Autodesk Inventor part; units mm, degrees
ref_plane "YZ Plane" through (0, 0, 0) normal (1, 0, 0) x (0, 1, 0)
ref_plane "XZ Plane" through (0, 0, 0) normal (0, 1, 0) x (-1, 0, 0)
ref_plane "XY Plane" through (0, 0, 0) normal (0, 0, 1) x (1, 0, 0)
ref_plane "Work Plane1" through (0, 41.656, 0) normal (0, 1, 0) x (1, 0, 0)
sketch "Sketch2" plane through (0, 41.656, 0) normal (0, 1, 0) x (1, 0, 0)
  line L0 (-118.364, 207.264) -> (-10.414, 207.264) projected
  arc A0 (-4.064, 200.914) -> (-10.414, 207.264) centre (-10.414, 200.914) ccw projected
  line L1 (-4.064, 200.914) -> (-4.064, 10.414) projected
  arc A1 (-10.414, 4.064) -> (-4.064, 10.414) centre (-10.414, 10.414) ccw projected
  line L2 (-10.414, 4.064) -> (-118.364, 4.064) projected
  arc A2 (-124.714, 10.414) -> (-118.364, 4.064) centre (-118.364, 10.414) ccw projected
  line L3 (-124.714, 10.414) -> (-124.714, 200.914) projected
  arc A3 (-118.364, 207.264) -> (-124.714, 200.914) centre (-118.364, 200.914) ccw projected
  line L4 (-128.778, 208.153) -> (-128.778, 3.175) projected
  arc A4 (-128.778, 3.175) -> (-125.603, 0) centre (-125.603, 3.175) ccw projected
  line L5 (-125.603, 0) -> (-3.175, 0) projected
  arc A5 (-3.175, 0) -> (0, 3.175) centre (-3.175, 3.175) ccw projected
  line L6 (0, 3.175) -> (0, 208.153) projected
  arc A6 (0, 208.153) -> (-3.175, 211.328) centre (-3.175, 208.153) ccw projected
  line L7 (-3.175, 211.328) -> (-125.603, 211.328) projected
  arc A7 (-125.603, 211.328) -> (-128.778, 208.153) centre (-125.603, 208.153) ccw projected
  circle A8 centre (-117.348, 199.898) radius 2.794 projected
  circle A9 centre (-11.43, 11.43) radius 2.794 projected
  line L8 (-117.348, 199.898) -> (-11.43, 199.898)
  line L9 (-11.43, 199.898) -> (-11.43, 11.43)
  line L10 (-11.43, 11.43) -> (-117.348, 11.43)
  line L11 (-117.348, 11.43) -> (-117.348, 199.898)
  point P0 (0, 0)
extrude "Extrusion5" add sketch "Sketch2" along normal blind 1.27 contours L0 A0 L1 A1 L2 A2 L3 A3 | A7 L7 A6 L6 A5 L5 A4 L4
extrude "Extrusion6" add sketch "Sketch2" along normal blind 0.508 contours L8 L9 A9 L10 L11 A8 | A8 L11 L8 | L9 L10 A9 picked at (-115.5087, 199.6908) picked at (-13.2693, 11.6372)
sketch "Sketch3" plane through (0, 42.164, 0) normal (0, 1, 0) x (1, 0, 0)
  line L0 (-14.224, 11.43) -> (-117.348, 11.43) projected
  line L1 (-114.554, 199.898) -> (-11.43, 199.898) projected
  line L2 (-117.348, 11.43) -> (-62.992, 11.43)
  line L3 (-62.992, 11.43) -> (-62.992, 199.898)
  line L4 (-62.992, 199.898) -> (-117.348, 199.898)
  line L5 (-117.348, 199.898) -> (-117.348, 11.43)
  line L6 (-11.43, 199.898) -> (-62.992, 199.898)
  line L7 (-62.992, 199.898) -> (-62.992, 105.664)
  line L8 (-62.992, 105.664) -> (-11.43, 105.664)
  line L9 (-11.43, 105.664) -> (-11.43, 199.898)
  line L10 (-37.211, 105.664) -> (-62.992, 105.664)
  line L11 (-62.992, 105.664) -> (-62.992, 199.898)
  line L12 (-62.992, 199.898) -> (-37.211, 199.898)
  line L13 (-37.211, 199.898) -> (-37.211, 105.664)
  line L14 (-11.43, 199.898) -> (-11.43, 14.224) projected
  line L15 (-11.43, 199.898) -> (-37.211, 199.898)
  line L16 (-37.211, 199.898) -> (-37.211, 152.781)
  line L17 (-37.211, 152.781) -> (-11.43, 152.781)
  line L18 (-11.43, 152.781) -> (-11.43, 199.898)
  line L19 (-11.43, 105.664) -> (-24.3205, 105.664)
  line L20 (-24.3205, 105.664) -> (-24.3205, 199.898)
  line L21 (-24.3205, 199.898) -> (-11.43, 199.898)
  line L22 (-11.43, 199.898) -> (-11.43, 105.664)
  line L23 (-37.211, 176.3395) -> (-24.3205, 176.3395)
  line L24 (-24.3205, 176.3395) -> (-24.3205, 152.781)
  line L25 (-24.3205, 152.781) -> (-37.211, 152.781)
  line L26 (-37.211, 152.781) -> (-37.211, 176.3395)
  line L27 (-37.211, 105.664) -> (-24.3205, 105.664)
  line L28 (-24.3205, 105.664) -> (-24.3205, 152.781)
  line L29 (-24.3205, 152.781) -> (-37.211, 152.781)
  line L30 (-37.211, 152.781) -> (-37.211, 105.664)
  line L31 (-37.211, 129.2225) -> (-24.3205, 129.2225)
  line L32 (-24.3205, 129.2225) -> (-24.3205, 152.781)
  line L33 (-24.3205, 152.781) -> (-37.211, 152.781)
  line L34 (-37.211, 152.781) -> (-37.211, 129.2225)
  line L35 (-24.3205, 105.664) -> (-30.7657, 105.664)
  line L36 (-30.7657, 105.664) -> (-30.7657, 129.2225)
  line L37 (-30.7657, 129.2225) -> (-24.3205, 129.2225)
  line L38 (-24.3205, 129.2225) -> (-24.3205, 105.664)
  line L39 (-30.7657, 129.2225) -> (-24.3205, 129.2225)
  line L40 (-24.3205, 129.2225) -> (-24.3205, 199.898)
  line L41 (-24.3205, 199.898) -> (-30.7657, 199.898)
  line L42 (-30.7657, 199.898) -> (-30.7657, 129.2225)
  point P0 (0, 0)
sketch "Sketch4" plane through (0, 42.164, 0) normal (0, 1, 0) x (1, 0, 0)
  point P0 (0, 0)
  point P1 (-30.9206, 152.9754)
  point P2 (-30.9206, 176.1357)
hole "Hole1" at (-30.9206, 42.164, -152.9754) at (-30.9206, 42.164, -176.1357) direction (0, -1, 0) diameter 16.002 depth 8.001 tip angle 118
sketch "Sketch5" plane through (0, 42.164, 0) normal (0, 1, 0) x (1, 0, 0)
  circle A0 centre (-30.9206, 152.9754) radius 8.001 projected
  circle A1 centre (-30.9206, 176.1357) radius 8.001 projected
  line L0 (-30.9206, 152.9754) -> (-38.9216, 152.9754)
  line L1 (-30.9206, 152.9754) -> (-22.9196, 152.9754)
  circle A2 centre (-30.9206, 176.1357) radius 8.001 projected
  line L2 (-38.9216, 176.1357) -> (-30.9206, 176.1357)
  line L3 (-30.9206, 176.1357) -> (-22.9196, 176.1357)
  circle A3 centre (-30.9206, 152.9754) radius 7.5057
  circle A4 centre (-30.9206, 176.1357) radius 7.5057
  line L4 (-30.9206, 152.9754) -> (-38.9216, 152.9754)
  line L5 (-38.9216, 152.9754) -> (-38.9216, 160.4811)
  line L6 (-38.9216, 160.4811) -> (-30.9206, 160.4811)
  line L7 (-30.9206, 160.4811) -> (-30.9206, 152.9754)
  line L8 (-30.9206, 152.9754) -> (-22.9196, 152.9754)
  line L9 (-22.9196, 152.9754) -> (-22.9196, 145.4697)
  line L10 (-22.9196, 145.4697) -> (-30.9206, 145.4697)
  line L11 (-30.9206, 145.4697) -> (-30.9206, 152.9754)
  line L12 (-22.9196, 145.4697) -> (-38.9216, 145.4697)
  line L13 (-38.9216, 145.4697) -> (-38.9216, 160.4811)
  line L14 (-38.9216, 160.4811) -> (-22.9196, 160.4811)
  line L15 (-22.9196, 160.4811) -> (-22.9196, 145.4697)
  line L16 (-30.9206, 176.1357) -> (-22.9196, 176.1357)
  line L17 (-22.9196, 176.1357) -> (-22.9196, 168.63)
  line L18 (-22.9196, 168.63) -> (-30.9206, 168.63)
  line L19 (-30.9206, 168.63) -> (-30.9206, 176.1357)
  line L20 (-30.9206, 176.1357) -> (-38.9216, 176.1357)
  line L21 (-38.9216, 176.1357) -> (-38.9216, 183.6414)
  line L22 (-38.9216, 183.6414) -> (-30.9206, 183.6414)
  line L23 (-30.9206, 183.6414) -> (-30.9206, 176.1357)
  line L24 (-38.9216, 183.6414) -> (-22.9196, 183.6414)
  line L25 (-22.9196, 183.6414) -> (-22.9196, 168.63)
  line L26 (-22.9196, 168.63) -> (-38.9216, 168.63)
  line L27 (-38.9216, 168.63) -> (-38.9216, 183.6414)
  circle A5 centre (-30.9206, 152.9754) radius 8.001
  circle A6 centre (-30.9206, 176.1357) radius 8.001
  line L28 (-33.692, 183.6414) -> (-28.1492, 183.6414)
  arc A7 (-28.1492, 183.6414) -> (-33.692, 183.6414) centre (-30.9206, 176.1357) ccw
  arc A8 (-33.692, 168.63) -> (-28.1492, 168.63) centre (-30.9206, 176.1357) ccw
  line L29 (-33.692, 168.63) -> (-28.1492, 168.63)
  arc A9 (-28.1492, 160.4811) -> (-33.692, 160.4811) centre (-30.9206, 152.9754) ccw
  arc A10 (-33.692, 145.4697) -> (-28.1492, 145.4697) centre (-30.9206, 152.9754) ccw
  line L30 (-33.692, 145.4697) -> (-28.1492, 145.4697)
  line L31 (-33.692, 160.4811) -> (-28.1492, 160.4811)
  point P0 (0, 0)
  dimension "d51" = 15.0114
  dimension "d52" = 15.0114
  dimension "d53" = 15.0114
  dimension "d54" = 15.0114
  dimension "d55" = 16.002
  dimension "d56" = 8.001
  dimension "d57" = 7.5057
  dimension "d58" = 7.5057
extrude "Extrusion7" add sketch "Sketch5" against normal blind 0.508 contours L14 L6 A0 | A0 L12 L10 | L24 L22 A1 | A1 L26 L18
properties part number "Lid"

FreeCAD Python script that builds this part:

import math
import FreeCAD as App
import Part
import Sketcher
from FreeCAD import Vector
Q = App.Units.Quantity


def add_polygon(sketch, points):
    """Adds a closed chain of lines whose ends are joined by coincident constraints."""
    first, n = sketch.GeometryCount, len(points)
    for a, b in zip(points, points[1:] + points[:1]):
        sketch.addGeometry(Part.LineSegment(App.Vector(*a, 0), App.Vector(*b, 0)), False)
    for i in range(n):
        sketch.addConstraint(Sketcher.Constraint("Coincident", first + i, 2, first + (i + 1) % n, 1))

doc = App.newDocument("Part")
params = doc.addObject("Spreadsheet::Sheet", "Params")
for row, (alias, value) in enumerate([
    ("sketch1_radius", "0.11 in"),
    ("sketch1_radius2", "0.125 in"),
    ("sketch1_width", "4.82 in"),
    ("sketch1_width2", "4.06 in"),
    ("sketch1_height", "8.07 in"),
    ("pad1_length", "0.05 in"),
    ("sketch2_width", "4.17 in"),
    ("sketch2_height", "7.42 in"),
    ("pad2_length", "0.02 in"),
    ("sketch3_diameter", "0.63 in"),
    ("hole_diameter", "0.63 in"),
    ("hole_depth", "0.315 in"),
    ("sketch4_radius", "0.315 in"),
    ("pad3_length", "0.02 in"),
], start=1):
    params.set(f"A{row}", alias)
    params.set(f"B{row}", "=" + value)
    params.setAlias(f"B{row}", alias)

body = doc.addObject("PartDesign::Body", "Body")

sketch1 = body.newObject("Sketcher::SketchObject", "Sketch")
sketch1.AttachmentSupport = (doc.getObject("XZ_Plane"), [""])
sketch1.MapMode = "FlatFace"
sketch1.AttachmentOffset = App.Placement(Vector(0, 0, -1.64 * 25.4), App.Rotation())
sketch1.addGeometry(Part.ArcOfCircle(Part.Circle(Vector(-125.6, -208.2, 0), Vector(0, 0, 1), 3.2), math.radians(180), math.radians(270)), False)
sketch1.addGeometry(Part.LineSegment(Vector(-128.8, -208.2, 0), Vector(-128.8, -3.2, 0)), False)
sketch1.addGeometry(Part.ArcOfCircle(Part.Circle(Vector(-125.6, -3.2, 0), Vector(0, 0, 1), 3.2), math.radians(90), math.radians(180)), False)
sketch1.addGeometry(Part.LineSegment(Vector(-125.6, 0, 0), Vector(-3.2, 0, 0)), False)
sketch1.addGeometry(Part.ArcOfCircle(Part.Circle(Vector(-3.2, -3.2, 0), Vector(0, 0, 1), 3.2), math.radians(0), math.radians(90)), False)
sketch1.addGeometry(Part.LineSegment(Vector(0, -3.2, 0), Vector(0, -208.2, 0)), False)
sketch1.addGeometry(Part.ArcOfCircle(Part.Circle(Vector(-3.2, -208.2, 0), Vector(0, 0, 1), 3.2), math.radians(-90), math.radians(0)), False)
sketch1.addGeometry(Part.LineSegment(Vector(-3.2, -211.3, 0), Vector(-125.6, -211.3, 0)), False)
sketch1.addGeometry(Part.ArcOfCircle(Part.Circle(Vector(-117.3, -199.9, 0), Vector(0, 0, 1), 2.8), math.radians(90), math.radians(360)), False)
sketch1.addGeometry(Part.LineSegment(Vector(-114.6, -199.9, 0), Vector(-11.4, -199.9, 0)), False)
sketch1.addGeometry(Part.LineSegment(Vector(-11.4, -199.9, 0), Vector(-11.4, -14.2, 0)), False)
sketch1.addGeometry(Part.ArcOfCircle(Part.Circle(Vector(-11.4, -11.4, 0), Vector(0, 0, 1), 2.8), math.radians(-90), math.radians(180)), False)
sketch1.addGeometry(Part.LineSegment(Vector(-14.2, -11.4, 0), Vector(-117.3, -11.4, 0)), False)
sketch1.addGeometry(Part.LineSegment(Vector(-117.3, -11.4, 0), Vector(-117.3, -197.1, 0)), False)
sketch1.addConstraint(Sketcher.Constraint("Tangent", 0, 1, 1, 1))
sketch1.addConstraint(Sketcher.Constraint("Tangent", 1, 2, 2, 2))
sketch1.addConstraint(Sketcher.Constraint("Tangent", 2, 1, 3, 1))
sketch1.addConstraint(Sketcher.Constraint("Tangent", 3, 2, 4, 2))
sketch1.addConstraint(Sketcher.Constraint("Tangent", 4, 1, 5, 1))
sketch1.addConstraint(Sketcher.Constraint("Tangent", 5, 2, 6, 2))
sketch1.addConstraint(Sketcher.Constraint("Tangent", 6, 1, 7, 1))
sketch1.addConstraint(Sketcher.Constraint("Tangent", 7, 2, 0, 2))
sketch1.addConstraint(Sketcher.Constraint("Coincident", 8, 2, 9, 1))
sketch1.addConstraint(Sketcher.Constraint("Coincident", 9, 2, 10, 1))
sketch1.addConstraint(Sketcher.Constraint("Coincident", 10, 2, 11, 1))
sketch1.addConstraint(Sketcher.Constraint("Coincident", 11, 2, 12, 1))
sketch1.addConstraint(Sketcher.Constraint("Coincident", 12, 2, 13, 1))
sketch1.addConstraint(Sketcher.Constraint("Coincident", 13, 2, 8, 1))
sketch1.addConstraint(Sketcher.Constraint("Vertical", 1))
sketch1.addConstraint(Sketcher.Constraint("Horizontal", 3))
sketch1.addConstraint(Sketcher.Constraint("Vertical", 5))
sketch1.addConstraint(Sketcher.Constraint("Horizontal", 7))
sketch1.addConstraint(Sketcher.Constraint("Horizontal", 9))
sketch1.addConstraint(Sketcher.Constraint("Vertical", 10))
sketch1.addConstraint(Sketcher.Constraint("Horizontal", 12))
sketch1.addConstraint(Sketcher.Constraint("Vertical", 13))
sketch1.addConstraint(Sketcher.Constraint("Equal", 0, 2))
sketch1.addConstraint(Sketcher.Constraint("Equal", 2, 4))
sketch1.addConstraint(Sketcher.Constraint("Equal", 4, 6))
sketch1.addConstraint(Sketcher.Constraint("Equal", 8, 11))
sketch1.addConstraint(Sketcher.Constraint("PointOnObject", 2, 1, -1))
sketch1.addConstraint(Sketcher.Constraint("PointOnObject", 4, 1, -2))
sketch1.addConstraint(Sketcher.Constraint("Vertical", 11, 3, 9, 2))
sketch1.addConstraint(Sketcher.Constraint("Vertical", 8, 3, 12, 2))
sketch1.addConstraint(Sketcher.Constraint("Equal", 10, 13))
sketch1.addConstraint(Sketcher.Constraint("Radius", 8, Q("0.11 in")))
sketch1.addConstraint(Sketcher.Constraint("Radius", 0, Q("0.125 in")))
sketch1.addConstraint(Sketcher.Constraint("DistanceX", 3, 1, 3, 2, Q("4.82 in")))
sketch1.addConstraint(Sketcher.Constraint("DistanceX", 9, 1, 9, 2, Q("4.06 in")))
sketch1.addConstraint(Sketcher.Constraint("DistanceY", 1, 1, 1, 2, Q("8.07 in")))
sketch1.addConstraint(Sketcher.Constraint("DistanceY", 10, 1, 10, 2, Q("7.31 in")))
sketch1.addConstraint(Sketcher.Constraint("DistanceX", 8, 3, -1, 1, Q("4.62 in")))
sketch1.addConstraint(Sketcher.Constraint("DistanceY", 8, 3, -1, 1, Q("7.87 in")))
sketch1.addConstraint(Sketcher.Constraint("DistanceY", 11, 3, -1, 1, Q("0.45 in")))
sketch1.setExpression("Constraints[31]", "Params.sketch1_radius")
sketch1.setExpression("Constraints[32]", "Params.sketch1_radius2")
sketch1.setExpression("Constraints[33]", "Params.sketch1_width")
sketch1.setExpression("Constraints[34]", "Params.sketch1_width2")
sketch1.setExpression("Constraints[35]", "Params.sketch1_height")
pad1 = body.newObject("PartDesign::Pad", "Pad")
pad1.Profile = sketch1
pad1.setExpression("Length", "Params.pad1_length")
pad1.Reversed = True

sketch2 = body.newObject("Sketcher::SketchObject", "Sketch001")
sketch2.AttachmentSupport = (doc.getObject("XZ_Plane"), [""])
sketch2.MapMode = "FlatFace"
sketch2.AttachmentOffset = App.Placement(Vector(0, 0, -1.64 * 25.4), App.Rotation())
add_polygon(sketch2, [(-11, -200), (-117, -200), (-117, -11), (-11, -11)])
sketch2.addConstraint(Sketcher.Constraint("Horizontal", 0))
sketch2.addConstraint(Sketcher.Constraint("Vertical", 1))
sketch2.addConstraint(Sketcher.Constraint("Horizontal", 2))
sketch2.addConstraint(Sketcher.Constraint("Vertical", 3))
sketch2.addConstraint(Sketcher.Constraint("DistanceX", 0, 2, 0, 1, Q("4.17 in")))
sketch2.addConstraint(Sketcher.Constraint("DistanceY", 1, 1, 1, 2, Q("7.42 in")))
sketch2.addConstraint(Sketcher.Constraint("DistanceX", 0, 2, -1, 1, Q("4.62 in")))
sketch2.addConstraint(Sketcher.Constraint("DistanceY", 0, 2, -1, 1, Q("7.87 in")))
sketch2.setExpression("Constraints[8]", "Params.sketch2_width")
sketch2.setExpression("Constraints[9]", "Params.sketch2_height")
pad2 = body.newObject("PartDesign::Pad", "Pad001")
pad2.Profile = sketch2
pad2.setExpression("Length", "Params.pad2_length")
pad2.Reversed = True

sketch3 = body.newObject("Sketcher::SketchObject", "Sketch002")
sketch3.AttachmentSupport = (doc.getObject("XZ_Plane"), [""])
sketch3.MapMode = "FlatFace"
sketch3.AttachmentOffset = App.Placement(Vector(0, 0, -1.66 * 25.4), App.Rotation())
sketch3.addGeometry(Part.Circle(Vector(-31, -153, 0), Vector(0, 0, 1), 8), False)
sketch3.addGeometry(Part.Circle(Vector(-31, -176, 0), Vector(0, 0, 1), 8), False)
sketch3.addConstraint(Sketcher.Constraint("Equal", 0, 1))
sketch3.addConstraint(Sketcher.Constraint("Vertical", 0, 3, 1, 3))
sketch3.addConstraint(Sketcher.Constraint("Diameter", 0, Q("0.63 in")))
sketch3.addConstraint(Sketcher.Constraint("DistanceX", 0, 3, -1, 1, 30.9206))
sketch3.addConstraint(Sketcher.Constraint("DistanceY", 0, 3, -1, 1, 152.9754))
sketch3.addConstraint(Sketcher.Constraint("DistanceY", 1, 3, -1, 1, 176.1357))
sketch3.setExpression("Constraints[2]", "Params.sketch3_diameter")
doc.recompute()
hole = body.newObject("PartDesign::Hole", "Hole")
hole.Profile = sketch3
hole.ThreadType = "None"
hole.setExpression("Diameter", "Params.hole_diameter")
hole.DepthType = "Dimension"
hole.setExpression("Depth", "Params.hole_depth")
hole.DrillPoint = "Angled"
hole.DrillPointAngle = 118
hole.Reversed = True

sketch4 = body.newObject("Sketcher::SketchObject", "Sketch003")
sketch4.AttachmentSupport = (doc.getObject("XZ_Plane"), [""])
sketch4.MapMode = "FlatFace"
sketch4.AttachmentOffset = App.Placement(Vector(0, 0, -1.66 * 25.4), App.Rotation())
sketch4.addGeometry(Part.LineSegment(Vector(-34, -160, 0), Vector(-28, -160, 0)), False)
sketch4.addGeometry(Part.ArcOfCircle(Part.Circle(Vector(-31, -153, 0), Vector(0, 0, 1), 8), math.radians(-110), math.radians(-70)), False)
sketch4.addGeometry(Part.ArcOfCircle(Part.Circle(Vector(-31, -153, 0), Vector(0, 0, 1), 8), math.radians(70), math.radians(110)), False)
sketch4.addGeometry(Part.LineSegment(Vector(-34, -145, 0), Vector(-28, -145, 0)), False)
sketch4.addGeometry(Part.LineSegment(Vector(-34, -184, 0), Vector(-28, -184, 0)), False)
sketch4.addGeometry(Part.ArcOfCircle(Part.Circle(Vector(-31, -176, 0), Vector(0, 0, 1), 8), math.radians(-110), math.radians(-70)), False)
sketch4.addGeometry(Part.ArcOfCircle(Part.Circle(Vector(-31, -176, 0), Vector(0, 0, 1), 8), math.radians(70), math.radians(110)), False)
sketch4.addGeometry(Part.LineSegment(Vector(-34, -169, 0), Vector(-28, -169, 0)), False)
sketch4.addConstraint(Sketcher.Constraint("Coincident", 0, 1, 1, 1))
sketch4.addConstraint(Sketcher.Constraint("Coincident", 1, 2, 0, 2))
sketch4.addConstraint(Sketcher.Constraint("Coincident", 2, 1, 3, 2))
sketch4.addConstraint(Sketcher.Constraint("Coincident", 3, 1, 2, 2))
sketch4.addConstraint(Sketcher.Constraint("Coincident", 4, 1, 5, 1))
sketch4.addConstraint(Sketcher.Constraint("Coincident", 5, 2, 4, 2))
sketch4.addConstraint(Sketcher.Constraint("Coincident", 6, 1, 7, 2))
sketch4.addConstraint(Sketcher.Constraint("Coincident", 7, 1, 6, 2))
sketch4.addConstraint(Sketcher.Constraint("Horizontal", 0))
sketch4.addConstraint(Sketcher.Constraint("Horizontal", 3))
sketch4.addConstraint(Sketcher.Constraint("Horizontal", 4))
sketch4.addConstraint(Sketcher.Constraint("Horizontal", 7))
sketch4.addConstraint(Sketcher.Constraint("Coincident", 2, 3, 1, 3))
sketch4.addConstraint(Sketcher.Constraint("Coincident", 6, 3, 5, 3))
sketch4.addConstraint(Sketcher.Constraint("Equal", 1, 2))
sketch4.addConstraint(Sketcher.Constraint("Equal", 2, 5))
sketch4.addConstraint(Sketcher.Constraint("Equal", 5, 6))
sketch4.addConstraint(Sketcher.Constraint("Vertical", 2, 3, 5, 3))
sketch4.addConstraint(Sketcher.Constraint("Vertical", 1, 2, 2, 1))
sketch4.addConstraint(Sketcher.Constraint("Vertical", 3, 1, 4, 1))
sketch4.addConstraint(Sketcher.Constraint("Vertical", 5, 2, 6, 1))
sketch4.addConstraint(Sketcher.Constraint("Radius", 1, Q("0.315 in")))
sketch4.addConstraint(Sketcher.Constraint("DistanceY", 1, 2, 2, 1, Q("0.591 in")))
sketch4.addConstraint(Sketcher.Constraint("DistanceX", 1, 3, -1, 1, 30.9206))
sketch4.addConstraint(Sketcher.Constraint("DistanceY", 1, 3, -1, 1, 152.9754))
sketch4.addConstraint(Sketcher.Constraint("DistanceY", 5, 3, -1, 1, 176.1357))
sketch4.setExpression("Constraints[21]", "Params.sketch4_radius")
pad3 = body.newObject("PartDesign::Pad", "Pad002")
pad3.Profile = sketch4
pad3.setExpression("Length", "Params.pad3_length")

doc.recompute()
